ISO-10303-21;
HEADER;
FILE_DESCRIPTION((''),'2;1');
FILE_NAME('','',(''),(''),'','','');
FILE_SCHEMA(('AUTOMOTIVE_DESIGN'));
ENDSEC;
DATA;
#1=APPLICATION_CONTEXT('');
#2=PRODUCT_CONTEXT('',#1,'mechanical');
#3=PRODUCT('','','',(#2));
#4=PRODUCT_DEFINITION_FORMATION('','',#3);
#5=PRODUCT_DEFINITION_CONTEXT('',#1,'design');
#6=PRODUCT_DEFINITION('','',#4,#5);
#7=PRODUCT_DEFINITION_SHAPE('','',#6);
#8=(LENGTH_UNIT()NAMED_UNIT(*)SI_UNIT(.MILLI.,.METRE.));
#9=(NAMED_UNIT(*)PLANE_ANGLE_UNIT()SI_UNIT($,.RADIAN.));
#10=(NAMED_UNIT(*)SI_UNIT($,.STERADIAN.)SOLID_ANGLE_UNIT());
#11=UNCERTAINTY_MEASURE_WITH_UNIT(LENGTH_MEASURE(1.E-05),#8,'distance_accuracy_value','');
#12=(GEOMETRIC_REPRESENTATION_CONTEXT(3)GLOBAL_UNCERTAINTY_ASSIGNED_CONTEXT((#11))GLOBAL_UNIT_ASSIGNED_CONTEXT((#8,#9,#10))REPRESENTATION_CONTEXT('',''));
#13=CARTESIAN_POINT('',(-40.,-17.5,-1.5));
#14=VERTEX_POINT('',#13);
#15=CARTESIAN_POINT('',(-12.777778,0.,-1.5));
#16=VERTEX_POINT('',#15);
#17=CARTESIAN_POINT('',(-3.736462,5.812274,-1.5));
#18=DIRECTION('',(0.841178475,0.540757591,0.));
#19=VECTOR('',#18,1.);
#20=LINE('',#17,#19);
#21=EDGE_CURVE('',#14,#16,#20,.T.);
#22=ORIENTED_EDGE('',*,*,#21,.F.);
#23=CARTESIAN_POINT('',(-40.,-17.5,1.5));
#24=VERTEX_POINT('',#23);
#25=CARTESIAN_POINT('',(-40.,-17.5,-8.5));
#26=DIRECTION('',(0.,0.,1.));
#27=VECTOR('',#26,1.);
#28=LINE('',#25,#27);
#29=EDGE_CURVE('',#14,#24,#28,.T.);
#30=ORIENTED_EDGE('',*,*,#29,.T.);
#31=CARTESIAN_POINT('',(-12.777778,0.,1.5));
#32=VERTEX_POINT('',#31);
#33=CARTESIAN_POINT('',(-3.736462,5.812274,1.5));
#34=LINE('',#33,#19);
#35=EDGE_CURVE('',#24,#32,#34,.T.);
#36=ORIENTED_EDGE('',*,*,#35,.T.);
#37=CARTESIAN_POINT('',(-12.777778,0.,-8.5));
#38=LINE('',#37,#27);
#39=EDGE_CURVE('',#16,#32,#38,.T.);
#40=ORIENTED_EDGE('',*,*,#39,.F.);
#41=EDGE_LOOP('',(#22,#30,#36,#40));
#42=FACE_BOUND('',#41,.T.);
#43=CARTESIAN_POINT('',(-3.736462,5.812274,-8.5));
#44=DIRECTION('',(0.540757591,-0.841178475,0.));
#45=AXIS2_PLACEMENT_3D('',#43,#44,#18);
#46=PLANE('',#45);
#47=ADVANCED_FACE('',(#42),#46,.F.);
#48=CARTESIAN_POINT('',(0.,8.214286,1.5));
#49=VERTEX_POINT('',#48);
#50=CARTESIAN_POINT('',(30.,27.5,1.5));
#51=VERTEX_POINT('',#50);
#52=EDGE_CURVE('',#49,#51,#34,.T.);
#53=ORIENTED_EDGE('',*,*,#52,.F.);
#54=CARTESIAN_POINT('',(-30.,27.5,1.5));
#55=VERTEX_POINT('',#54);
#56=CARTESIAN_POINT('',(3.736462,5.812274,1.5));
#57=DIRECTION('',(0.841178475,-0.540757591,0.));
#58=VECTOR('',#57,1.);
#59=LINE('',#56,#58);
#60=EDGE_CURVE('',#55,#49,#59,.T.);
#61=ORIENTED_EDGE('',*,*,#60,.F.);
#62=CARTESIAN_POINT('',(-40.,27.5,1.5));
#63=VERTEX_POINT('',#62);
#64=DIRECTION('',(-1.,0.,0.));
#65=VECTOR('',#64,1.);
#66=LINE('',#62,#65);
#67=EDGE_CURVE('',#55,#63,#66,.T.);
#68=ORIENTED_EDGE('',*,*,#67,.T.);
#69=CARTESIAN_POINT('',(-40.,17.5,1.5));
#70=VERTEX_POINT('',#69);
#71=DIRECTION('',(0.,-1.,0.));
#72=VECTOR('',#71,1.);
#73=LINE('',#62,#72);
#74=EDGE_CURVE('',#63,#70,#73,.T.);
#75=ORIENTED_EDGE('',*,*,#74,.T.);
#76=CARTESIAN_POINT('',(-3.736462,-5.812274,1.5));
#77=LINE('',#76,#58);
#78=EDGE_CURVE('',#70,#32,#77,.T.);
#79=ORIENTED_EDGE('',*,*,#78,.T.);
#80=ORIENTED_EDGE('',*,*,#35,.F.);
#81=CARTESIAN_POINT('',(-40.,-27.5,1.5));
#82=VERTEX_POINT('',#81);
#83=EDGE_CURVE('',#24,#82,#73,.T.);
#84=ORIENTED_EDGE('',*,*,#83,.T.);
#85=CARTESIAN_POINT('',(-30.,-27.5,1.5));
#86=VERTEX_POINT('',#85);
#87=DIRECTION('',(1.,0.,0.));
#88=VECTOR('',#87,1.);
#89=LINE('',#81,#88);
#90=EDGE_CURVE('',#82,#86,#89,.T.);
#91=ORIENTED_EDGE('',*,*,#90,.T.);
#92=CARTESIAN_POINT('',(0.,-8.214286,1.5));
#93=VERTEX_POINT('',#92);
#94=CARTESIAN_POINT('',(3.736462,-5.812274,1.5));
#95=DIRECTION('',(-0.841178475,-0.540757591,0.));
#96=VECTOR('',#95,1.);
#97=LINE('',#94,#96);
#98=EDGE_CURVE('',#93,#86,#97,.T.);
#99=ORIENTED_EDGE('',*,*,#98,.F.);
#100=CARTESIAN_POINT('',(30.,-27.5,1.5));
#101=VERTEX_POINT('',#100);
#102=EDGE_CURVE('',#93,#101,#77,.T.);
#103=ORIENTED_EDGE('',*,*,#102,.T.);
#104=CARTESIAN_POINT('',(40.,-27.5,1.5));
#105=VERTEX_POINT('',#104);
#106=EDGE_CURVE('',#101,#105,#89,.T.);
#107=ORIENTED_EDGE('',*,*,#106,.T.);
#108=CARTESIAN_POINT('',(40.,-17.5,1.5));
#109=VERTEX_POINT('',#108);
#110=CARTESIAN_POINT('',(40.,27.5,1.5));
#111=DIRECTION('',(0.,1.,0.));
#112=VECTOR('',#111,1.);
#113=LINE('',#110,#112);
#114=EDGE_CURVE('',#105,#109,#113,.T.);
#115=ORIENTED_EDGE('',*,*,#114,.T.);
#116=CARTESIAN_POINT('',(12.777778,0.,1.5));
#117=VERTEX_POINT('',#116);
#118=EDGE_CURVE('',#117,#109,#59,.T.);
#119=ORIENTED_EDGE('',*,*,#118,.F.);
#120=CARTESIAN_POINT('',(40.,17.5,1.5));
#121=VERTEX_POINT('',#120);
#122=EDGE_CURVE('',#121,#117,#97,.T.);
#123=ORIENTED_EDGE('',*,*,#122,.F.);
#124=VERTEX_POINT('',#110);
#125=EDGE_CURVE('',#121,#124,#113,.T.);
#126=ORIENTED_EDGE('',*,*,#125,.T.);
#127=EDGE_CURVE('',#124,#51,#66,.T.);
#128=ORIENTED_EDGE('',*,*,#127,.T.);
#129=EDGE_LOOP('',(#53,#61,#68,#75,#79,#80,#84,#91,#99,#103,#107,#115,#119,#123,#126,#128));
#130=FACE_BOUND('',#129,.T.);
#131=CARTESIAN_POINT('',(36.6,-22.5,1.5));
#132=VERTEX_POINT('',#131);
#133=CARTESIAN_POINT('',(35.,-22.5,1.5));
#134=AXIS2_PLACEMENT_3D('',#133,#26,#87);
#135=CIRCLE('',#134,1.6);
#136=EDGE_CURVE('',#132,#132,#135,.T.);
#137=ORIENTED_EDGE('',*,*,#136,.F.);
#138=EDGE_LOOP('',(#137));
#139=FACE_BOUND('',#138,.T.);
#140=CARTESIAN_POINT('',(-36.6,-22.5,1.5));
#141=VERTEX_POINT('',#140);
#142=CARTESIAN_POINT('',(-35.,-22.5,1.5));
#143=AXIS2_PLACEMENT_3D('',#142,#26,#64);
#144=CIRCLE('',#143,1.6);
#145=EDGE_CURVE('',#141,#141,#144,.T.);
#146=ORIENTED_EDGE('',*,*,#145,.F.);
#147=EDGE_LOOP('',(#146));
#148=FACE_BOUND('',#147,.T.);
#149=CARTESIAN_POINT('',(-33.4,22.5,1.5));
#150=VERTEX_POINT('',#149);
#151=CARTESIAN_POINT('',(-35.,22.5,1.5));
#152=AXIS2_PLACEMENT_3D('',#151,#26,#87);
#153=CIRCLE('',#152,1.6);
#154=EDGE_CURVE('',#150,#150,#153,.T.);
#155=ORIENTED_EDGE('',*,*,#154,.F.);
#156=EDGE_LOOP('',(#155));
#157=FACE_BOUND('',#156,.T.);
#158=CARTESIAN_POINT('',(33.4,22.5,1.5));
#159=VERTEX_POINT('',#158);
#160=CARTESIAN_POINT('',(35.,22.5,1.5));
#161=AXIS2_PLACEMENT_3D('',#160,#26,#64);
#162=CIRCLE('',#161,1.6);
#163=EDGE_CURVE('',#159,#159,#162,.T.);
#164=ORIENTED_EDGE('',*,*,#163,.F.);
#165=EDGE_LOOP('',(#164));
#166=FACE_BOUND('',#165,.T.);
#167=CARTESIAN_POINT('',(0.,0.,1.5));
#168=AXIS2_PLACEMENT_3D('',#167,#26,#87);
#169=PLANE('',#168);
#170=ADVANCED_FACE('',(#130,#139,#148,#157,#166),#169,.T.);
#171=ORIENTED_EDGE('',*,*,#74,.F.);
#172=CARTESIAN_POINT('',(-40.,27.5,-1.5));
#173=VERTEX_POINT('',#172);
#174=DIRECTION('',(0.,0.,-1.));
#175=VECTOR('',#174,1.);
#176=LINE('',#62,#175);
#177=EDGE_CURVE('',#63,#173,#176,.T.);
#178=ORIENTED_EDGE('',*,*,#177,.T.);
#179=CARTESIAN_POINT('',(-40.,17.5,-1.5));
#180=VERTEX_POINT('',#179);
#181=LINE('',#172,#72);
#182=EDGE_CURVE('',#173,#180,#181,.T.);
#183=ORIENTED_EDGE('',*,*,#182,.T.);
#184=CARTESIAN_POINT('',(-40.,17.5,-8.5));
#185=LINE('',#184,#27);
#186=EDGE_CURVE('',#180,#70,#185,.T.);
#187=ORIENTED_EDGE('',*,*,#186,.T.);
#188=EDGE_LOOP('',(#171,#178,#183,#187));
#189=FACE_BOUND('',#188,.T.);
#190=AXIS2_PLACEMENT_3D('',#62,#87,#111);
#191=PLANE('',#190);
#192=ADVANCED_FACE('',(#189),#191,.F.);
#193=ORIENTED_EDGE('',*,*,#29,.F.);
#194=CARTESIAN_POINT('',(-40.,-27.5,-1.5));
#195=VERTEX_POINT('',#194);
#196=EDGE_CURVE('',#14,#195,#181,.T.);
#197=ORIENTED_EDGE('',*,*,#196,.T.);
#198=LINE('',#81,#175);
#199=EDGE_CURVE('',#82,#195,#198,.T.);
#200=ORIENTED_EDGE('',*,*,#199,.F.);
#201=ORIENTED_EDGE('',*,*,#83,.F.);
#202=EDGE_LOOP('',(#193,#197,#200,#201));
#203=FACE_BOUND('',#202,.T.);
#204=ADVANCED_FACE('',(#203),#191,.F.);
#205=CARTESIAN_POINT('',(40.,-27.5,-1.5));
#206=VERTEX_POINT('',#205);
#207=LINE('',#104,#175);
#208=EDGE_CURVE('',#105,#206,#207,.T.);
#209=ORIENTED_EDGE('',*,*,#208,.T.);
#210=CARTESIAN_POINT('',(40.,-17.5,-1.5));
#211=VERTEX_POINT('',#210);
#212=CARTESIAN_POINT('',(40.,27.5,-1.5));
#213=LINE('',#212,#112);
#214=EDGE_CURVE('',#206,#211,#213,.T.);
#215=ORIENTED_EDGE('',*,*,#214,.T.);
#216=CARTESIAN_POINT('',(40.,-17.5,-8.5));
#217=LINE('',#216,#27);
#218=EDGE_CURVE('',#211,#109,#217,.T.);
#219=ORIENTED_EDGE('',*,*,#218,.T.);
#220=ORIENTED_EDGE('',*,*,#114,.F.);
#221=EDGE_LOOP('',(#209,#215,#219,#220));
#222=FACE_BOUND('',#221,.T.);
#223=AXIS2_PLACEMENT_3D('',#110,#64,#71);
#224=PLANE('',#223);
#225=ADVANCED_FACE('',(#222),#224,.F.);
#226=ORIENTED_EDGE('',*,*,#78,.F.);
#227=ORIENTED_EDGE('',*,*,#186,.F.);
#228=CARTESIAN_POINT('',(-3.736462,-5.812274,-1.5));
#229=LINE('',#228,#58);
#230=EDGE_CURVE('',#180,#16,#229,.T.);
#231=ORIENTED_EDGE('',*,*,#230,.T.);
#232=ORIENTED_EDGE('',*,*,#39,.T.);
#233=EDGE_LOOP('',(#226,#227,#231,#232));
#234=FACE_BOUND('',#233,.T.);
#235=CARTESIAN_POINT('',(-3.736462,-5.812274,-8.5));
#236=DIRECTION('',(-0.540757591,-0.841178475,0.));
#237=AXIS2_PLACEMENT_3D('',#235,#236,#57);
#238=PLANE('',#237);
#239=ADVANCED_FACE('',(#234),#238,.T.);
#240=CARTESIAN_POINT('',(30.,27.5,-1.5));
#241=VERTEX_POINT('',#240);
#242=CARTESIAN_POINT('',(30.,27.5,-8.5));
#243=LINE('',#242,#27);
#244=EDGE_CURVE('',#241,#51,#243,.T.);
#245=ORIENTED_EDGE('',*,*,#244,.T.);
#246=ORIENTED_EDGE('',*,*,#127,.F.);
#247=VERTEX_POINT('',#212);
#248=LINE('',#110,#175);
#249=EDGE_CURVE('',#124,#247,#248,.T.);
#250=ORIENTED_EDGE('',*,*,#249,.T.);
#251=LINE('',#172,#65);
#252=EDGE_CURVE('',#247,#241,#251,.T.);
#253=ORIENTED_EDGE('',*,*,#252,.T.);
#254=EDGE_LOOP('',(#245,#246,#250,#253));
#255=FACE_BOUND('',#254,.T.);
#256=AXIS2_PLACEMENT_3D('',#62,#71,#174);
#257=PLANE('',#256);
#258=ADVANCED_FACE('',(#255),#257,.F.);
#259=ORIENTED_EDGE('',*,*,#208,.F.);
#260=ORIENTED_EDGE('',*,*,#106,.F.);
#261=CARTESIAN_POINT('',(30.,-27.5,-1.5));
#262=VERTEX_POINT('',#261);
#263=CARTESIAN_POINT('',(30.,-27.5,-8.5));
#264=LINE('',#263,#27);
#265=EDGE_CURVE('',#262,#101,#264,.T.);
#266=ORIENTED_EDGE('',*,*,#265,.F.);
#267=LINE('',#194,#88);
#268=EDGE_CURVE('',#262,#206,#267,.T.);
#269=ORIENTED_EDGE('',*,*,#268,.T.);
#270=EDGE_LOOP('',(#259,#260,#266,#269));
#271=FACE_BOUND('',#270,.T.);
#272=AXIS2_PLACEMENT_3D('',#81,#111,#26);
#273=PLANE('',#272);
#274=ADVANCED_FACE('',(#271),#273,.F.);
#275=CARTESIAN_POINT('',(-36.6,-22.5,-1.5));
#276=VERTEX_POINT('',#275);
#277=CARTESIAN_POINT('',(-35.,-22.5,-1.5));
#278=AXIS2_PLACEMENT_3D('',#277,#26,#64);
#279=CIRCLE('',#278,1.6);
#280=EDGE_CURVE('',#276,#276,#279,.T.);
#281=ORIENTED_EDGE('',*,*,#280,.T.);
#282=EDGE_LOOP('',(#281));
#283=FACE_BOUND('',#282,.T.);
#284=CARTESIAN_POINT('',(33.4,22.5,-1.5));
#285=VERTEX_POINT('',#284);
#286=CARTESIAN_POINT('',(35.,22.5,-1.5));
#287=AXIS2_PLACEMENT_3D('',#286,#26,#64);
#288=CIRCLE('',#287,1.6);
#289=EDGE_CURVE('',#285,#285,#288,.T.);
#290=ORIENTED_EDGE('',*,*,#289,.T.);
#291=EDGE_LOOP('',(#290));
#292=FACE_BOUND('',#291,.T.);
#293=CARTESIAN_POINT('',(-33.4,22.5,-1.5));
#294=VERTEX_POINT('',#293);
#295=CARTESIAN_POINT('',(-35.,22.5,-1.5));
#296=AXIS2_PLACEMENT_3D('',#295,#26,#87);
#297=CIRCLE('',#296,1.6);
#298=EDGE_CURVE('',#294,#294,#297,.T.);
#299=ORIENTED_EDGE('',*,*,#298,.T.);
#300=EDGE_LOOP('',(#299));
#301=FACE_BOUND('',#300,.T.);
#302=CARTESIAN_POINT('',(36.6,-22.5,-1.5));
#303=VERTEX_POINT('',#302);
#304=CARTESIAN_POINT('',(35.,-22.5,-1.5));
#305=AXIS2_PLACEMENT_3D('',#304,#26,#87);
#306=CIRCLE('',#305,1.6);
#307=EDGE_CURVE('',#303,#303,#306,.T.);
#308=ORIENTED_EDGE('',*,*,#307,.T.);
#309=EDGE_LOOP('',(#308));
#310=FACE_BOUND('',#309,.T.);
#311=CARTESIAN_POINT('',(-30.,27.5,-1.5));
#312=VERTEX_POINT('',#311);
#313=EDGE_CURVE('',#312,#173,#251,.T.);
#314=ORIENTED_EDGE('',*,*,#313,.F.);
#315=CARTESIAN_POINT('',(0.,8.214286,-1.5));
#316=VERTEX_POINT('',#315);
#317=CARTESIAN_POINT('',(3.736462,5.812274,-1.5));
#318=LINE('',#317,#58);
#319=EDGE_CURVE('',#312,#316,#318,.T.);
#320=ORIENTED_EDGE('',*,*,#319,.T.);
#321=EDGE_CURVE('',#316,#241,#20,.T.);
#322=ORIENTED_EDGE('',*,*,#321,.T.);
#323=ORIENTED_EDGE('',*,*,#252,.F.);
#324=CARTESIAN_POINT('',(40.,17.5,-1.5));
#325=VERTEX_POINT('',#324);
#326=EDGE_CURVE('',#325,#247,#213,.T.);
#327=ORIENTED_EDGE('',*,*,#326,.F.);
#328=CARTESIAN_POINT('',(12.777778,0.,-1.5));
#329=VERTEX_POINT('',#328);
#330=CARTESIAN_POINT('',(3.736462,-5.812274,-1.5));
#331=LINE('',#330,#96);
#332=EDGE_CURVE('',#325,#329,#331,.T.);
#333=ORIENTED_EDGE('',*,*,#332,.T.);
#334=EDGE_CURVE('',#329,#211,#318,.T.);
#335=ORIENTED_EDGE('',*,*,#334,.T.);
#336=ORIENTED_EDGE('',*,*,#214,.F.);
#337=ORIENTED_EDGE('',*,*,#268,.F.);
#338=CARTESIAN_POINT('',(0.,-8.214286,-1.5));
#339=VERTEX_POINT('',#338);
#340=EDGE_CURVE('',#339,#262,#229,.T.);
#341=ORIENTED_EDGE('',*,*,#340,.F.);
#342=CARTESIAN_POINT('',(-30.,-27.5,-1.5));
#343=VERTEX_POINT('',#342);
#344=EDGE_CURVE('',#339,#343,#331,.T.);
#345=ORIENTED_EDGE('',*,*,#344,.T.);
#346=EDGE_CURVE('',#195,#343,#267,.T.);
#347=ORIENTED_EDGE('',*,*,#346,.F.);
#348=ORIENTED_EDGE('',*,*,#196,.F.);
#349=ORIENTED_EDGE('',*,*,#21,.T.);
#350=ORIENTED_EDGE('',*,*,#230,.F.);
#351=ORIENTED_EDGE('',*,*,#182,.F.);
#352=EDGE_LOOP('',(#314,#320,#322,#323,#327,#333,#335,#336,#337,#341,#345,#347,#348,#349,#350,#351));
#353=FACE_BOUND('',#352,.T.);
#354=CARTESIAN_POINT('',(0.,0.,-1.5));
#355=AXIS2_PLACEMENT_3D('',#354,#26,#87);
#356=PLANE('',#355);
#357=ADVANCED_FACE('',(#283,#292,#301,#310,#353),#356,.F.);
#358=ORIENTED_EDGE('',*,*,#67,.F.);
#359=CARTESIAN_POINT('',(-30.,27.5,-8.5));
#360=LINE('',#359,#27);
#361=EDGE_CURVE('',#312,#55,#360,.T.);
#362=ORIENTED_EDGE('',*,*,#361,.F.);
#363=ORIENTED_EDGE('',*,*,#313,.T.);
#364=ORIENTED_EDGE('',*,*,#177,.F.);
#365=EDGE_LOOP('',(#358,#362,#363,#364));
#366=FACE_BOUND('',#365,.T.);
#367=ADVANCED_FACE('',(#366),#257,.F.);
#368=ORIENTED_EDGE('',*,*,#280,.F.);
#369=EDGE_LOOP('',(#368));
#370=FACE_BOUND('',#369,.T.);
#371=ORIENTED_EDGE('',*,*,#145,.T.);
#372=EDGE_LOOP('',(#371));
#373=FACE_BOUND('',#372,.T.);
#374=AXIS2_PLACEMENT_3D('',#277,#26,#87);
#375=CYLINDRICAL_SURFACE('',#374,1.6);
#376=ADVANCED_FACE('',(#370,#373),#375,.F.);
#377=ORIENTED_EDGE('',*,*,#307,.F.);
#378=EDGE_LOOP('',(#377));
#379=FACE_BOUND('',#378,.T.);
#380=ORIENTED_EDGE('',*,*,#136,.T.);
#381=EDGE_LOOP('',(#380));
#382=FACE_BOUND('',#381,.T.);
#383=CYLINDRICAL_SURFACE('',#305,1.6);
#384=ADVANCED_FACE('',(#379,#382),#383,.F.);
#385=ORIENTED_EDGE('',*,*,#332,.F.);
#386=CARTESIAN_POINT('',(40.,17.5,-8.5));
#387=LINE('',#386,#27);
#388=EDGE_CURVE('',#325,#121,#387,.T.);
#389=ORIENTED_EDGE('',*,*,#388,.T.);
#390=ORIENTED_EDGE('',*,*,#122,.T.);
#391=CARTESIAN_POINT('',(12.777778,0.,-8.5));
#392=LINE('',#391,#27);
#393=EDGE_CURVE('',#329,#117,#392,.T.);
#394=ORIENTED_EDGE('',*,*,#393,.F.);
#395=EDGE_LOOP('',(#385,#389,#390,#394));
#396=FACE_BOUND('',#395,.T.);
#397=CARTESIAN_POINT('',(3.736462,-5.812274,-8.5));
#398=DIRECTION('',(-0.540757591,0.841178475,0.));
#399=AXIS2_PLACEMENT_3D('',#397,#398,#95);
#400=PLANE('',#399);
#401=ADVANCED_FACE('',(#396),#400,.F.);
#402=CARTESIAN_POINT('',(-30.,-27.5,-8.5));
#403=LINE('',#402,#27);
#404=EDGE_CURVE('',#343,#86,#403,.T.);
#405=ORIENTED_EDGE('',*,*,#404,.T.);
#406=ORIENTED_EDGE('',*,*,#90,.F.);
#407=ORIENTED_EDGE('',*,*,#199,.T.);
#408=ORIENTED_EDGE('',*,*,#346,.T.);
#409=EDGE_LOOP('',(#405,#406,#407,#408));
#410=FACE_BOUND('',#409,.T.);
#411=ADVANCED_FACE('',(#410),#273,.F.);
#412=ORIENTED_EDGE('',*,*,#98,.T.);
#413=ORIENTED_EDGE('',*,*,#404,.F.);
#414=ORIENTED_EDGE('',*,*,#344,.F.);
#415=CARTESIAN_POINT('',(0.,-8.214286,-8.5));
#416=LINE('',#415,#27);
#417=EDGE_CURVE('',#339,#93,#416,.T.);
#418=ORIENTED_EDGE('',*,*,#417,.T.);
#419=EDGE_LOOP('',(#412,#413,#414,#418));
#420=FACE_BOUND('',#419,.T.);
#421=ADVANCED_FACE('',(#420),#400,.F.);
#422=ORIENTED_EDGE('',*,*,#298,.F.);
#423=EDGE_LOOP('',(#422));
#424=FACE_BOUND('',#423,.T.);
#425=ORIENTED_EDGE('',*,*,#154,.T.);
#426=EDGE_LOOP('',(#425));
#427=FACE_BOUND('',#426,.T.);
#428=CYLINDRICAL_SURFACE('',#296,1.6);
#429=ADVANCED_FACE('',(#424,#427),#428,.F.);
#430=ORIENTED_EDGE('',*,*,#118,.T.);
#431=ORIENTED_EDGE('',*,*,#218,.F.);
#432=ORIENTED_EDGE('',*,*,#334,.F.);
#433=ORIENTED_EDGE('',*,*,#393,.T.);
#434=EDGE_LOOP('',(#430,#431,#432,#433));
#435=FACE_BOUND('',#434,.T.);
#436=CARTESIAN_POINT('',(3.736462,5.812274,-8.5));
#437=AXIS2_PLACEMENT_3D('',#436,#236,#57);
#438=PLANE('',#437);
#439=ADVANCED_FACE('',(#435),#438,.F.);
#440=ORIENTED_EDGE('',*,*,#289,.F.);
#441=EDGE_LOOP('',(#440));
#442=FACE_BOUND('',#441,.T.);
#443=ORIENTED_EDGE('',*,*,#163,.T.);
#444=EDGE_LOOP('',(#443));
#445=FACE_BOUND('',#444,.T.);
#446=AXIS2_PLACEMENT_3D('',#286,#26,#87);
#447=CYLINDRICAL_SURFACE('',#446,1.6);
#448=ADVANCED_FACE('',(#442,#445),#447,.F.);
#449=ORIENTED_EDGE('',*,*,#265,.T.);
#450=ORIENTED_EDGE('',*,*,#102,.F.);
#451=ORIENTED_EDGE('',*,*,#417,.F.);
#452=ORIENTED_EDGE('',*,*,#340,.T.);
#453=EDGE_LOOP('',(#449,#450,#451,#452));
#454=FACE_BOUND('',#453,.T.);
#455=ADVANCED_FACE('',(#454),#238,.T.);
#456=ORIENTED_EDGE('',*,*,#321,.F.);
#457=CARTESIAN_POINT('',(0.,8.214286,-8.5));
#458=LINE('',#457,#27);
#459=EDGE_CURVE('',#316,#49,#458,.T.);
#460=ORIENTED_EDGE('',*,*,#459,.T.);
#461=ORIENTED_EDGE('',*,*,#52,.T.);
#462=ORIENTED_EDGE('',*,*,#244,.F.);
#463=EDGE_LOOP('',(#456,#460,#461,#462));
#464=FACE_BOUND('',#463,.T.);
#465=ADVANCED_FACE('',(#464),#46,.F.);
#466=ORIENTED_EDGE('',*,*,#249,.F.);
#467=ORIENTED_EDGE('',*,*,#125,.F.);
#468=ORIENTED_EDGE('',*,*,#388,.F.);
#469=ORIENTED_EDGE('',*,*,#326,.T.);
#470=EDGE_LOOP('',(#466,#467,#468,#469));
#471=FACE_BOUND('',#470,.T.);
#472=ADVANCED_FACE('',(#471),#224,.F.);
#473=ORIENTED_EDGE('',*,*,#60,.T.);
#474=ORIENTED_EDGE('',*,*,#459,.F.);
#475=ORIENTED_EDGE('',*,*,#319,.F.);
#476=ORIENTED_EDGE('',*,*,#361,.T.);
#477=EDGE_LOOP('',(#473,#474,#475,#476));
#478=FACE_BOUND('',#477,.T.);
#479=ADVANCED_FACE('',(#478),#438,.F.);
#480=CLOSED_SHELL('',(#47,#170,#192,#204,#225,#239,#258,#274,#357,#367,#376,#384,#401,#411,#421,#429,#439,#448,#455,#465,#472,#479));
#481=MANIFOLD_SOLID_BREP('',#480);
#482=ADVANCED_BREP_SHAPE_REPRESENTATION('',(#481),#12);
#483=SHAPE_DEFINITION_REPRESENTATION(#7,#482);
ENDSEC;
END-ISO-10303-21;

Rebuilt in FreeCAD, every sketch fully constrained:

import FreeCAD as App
import Part
import Sketcher

V = App.Vector
Q = App.Units.Quantity


def add_polygon(sketch, points):
    """Adds a closed chain of lines whose ends are joined by coincident constraints."""
    first, n = sketch.GeometryCount, len(points)
    for a, b in zip(points, points[1:] + points[:1]):
        sketch.addGeometry(Part.LineSegment(App.Vector(*a, 0), App.Vector(*b, 0)), False)
    for i in range(n):
        sketch.addConstraint(Sketcher.Constraint("Coincident", first + i, 2, first + (i + 1) % n, 1))

doc = App.newDocument("Part")
body = doc.addObject("PartDesign::Body", "Body")

# Sketch on XY plane
sketch1 = doc.addObject("Sketcher::SketchObject", "Sketch")
body.addObject(sketch1)
sketch1.AttachmentSupport = (doc.XY_Plane, [""])
sketch1.MapMode = "FlatFace"
add_polygon(sketch1, [(-40, 27.5), (-40, -27.5), (40, -27.5), (40, 27.5)])  # lines 0-3
sketch1.addConstraint([
    Sketcher.Constraint("Vertical", 0),
    Sketcher.Constraint("Horizontal", 1),
    Sketcher.Constraint("Vertical", 2),
    Sketcher.Constraint("Horizontal", 3),
    Sketcher.Constraint("Symmetric", 0, 2, 2, 2, -1, 1),
    Sketcher.Constraint("DistanceX", 1, 1, 1, 2, Q("80 mm")),
    Sketcher.Constraint("DistanceY", 0, 2, 0, 1, Q("55 mm")),
])
pad1 = doc.addObject("PartDesign::Pad", "Pad")
body.addObject(pad1)
pad1.Profile = sketch1
pad1.Length = 3
pad1.Midplane = True

# Sketch on XY plane
sketch2 = doc.addObject("Sketcher::SketchObject", "Sketch001")
body.addObject(sketch2)
sketch2.AttachmentSupport = (doc.XY_Plane, [""])
sketch2.MapMode = "FlatFace"
sketch2.AttachmentOffset = App.Placement(V(0, 0, 1.5), App.Rotation())
sketch2.addGeometry([
    Part.Circle(V(-35, 22.5, 0), V(0, 0, 1), 1.6),
    Part.Circle(V(35, 22.5, 0), V(0, 0, 1), 1.6),
    Part.Circle(V(35, -22.5, 0), V(0, 0, 1), 1.6),
    Part.Circle(V(-35, -22.5, 0), V(0, 0, 1), 1.6),
], False)
sketch2.addConstraint([
    Sketcher.Constraint("Equal", 0, 1),
    Sketcher.Constraint("Equal", 1, 2),
    Sketcher.Constraint("Equal", 2, 3),
    Sketcher.Constraint("Symmetric", 0, 3, 2, 3, -1, 1),
    Sketcher.Constraint("Symmetric", 1, 3, 3, 3, -1, 1),
    Sketcher.Constraint("Symmetric", 0, 3, 1, 3, -2),
    Sketcher.Constraint("Diameter", 0, Q("3.2 mm")),
    Sketcher.Constraint("DistanceX", 0, 3, -1, 1, Q("35 mm")),
    Sketcher.Constraint("DistanceY", 2, 3, 1, 3, Q("45 mm")),
])
pocket1 = doc.addObject("PartDesign::Pocket", "Pocket")
body.addObject(pocket1)
pocket1.Profile = sketch2
pocket1.Type = "ThroughAll"

# Sketch on XY plane
sketch3 = doc.addObject("Sketcher::SketchObject", "Sketch002")
body.addObject(sketch3)
sketch3.AttachmentSupport = (doc.XY_Plane, [""])
sketch3.MapMode = "FlatFace"
sketch3.AttachmentOffset = App.Placement(V(0, 0, 1.5), App.Rotation())
add_polygon(sketch3, [(30, 27.5), (-30, 27.5), (0, 8.214286)])  # lines 0-2
add_polygon(sketch3, [(-40, -17.5), (-12.777778, 0), (-40, 17.5)])  # lines 3-5
add_polygon(sketch3, [(30, -27.5), (0, -8.214286), (-30, -27.5)])  # lines 6-8
add_polygon(sketch3, [(40, 17.5), (12.777778, 0), (40, -17.5)])  # lines 9-11
sketch3.addConstraint([
    Sketcher.Constraint("Horizontal", 0),
    Sketcher.Constraint("Vertical", 5),
    Sketcher.Constraint("Horizontal", 8),
    Sketcher.Constraint("Vertical", 11),
    Sketcher.Constraint("Symmetric", 1, 2, 6, 2, -1, 1),
    Sketcher.Constraint("Symmetric", 2, 2, 7, 2, -1, 1),
    Sketcher.Constraint("Symmetric", 3, 2, 9, 2, -1, 1),
    Sketcher.Constraint("Symmetric", 4, 2, 10, 2, -1, 1),
    Sketcher.Constraint("PointOnObject", 1, 2, -2),
    Sketcher.Constraint("PointOnObject", 3, 2, -1),
    Sketcher.Constraint("Parallel", 2, 3),
    Sketcher.Constraint("Parallel", 1, 4),
    Sketcher.Constraint("Parallel", 4, 6),
    Sketcher.Constraint("Parallel", 7, 9),
    Sketcher.Constraint("Horizontal", 5, 2, 10, 2),
    Sketcher.Constraint("DistanceX", 0, 2, 0, 1, Q("60 mm")),
    Sketcher.Constraint("DistanceY", 5, 2, 5, 1, Q("35 mm")),
    Sketcher.Constraint("DistanceX", 4, 2, -1, 1, Q("40 mm")),
    Sketcher.Constraint("DistanceY", 4, 2, 0, 2, Q("10 mm")),
    Sketcher.Constraint("Distance", 1, Q("35.664251 mm")),
])
pocket2 = doc.addObject("PartDesign::Pocket", "Pocket001")
body.addObject(pocket2)
pocket2.Profile = sketch3
pocket2.Length = 10

doc.recompute()
